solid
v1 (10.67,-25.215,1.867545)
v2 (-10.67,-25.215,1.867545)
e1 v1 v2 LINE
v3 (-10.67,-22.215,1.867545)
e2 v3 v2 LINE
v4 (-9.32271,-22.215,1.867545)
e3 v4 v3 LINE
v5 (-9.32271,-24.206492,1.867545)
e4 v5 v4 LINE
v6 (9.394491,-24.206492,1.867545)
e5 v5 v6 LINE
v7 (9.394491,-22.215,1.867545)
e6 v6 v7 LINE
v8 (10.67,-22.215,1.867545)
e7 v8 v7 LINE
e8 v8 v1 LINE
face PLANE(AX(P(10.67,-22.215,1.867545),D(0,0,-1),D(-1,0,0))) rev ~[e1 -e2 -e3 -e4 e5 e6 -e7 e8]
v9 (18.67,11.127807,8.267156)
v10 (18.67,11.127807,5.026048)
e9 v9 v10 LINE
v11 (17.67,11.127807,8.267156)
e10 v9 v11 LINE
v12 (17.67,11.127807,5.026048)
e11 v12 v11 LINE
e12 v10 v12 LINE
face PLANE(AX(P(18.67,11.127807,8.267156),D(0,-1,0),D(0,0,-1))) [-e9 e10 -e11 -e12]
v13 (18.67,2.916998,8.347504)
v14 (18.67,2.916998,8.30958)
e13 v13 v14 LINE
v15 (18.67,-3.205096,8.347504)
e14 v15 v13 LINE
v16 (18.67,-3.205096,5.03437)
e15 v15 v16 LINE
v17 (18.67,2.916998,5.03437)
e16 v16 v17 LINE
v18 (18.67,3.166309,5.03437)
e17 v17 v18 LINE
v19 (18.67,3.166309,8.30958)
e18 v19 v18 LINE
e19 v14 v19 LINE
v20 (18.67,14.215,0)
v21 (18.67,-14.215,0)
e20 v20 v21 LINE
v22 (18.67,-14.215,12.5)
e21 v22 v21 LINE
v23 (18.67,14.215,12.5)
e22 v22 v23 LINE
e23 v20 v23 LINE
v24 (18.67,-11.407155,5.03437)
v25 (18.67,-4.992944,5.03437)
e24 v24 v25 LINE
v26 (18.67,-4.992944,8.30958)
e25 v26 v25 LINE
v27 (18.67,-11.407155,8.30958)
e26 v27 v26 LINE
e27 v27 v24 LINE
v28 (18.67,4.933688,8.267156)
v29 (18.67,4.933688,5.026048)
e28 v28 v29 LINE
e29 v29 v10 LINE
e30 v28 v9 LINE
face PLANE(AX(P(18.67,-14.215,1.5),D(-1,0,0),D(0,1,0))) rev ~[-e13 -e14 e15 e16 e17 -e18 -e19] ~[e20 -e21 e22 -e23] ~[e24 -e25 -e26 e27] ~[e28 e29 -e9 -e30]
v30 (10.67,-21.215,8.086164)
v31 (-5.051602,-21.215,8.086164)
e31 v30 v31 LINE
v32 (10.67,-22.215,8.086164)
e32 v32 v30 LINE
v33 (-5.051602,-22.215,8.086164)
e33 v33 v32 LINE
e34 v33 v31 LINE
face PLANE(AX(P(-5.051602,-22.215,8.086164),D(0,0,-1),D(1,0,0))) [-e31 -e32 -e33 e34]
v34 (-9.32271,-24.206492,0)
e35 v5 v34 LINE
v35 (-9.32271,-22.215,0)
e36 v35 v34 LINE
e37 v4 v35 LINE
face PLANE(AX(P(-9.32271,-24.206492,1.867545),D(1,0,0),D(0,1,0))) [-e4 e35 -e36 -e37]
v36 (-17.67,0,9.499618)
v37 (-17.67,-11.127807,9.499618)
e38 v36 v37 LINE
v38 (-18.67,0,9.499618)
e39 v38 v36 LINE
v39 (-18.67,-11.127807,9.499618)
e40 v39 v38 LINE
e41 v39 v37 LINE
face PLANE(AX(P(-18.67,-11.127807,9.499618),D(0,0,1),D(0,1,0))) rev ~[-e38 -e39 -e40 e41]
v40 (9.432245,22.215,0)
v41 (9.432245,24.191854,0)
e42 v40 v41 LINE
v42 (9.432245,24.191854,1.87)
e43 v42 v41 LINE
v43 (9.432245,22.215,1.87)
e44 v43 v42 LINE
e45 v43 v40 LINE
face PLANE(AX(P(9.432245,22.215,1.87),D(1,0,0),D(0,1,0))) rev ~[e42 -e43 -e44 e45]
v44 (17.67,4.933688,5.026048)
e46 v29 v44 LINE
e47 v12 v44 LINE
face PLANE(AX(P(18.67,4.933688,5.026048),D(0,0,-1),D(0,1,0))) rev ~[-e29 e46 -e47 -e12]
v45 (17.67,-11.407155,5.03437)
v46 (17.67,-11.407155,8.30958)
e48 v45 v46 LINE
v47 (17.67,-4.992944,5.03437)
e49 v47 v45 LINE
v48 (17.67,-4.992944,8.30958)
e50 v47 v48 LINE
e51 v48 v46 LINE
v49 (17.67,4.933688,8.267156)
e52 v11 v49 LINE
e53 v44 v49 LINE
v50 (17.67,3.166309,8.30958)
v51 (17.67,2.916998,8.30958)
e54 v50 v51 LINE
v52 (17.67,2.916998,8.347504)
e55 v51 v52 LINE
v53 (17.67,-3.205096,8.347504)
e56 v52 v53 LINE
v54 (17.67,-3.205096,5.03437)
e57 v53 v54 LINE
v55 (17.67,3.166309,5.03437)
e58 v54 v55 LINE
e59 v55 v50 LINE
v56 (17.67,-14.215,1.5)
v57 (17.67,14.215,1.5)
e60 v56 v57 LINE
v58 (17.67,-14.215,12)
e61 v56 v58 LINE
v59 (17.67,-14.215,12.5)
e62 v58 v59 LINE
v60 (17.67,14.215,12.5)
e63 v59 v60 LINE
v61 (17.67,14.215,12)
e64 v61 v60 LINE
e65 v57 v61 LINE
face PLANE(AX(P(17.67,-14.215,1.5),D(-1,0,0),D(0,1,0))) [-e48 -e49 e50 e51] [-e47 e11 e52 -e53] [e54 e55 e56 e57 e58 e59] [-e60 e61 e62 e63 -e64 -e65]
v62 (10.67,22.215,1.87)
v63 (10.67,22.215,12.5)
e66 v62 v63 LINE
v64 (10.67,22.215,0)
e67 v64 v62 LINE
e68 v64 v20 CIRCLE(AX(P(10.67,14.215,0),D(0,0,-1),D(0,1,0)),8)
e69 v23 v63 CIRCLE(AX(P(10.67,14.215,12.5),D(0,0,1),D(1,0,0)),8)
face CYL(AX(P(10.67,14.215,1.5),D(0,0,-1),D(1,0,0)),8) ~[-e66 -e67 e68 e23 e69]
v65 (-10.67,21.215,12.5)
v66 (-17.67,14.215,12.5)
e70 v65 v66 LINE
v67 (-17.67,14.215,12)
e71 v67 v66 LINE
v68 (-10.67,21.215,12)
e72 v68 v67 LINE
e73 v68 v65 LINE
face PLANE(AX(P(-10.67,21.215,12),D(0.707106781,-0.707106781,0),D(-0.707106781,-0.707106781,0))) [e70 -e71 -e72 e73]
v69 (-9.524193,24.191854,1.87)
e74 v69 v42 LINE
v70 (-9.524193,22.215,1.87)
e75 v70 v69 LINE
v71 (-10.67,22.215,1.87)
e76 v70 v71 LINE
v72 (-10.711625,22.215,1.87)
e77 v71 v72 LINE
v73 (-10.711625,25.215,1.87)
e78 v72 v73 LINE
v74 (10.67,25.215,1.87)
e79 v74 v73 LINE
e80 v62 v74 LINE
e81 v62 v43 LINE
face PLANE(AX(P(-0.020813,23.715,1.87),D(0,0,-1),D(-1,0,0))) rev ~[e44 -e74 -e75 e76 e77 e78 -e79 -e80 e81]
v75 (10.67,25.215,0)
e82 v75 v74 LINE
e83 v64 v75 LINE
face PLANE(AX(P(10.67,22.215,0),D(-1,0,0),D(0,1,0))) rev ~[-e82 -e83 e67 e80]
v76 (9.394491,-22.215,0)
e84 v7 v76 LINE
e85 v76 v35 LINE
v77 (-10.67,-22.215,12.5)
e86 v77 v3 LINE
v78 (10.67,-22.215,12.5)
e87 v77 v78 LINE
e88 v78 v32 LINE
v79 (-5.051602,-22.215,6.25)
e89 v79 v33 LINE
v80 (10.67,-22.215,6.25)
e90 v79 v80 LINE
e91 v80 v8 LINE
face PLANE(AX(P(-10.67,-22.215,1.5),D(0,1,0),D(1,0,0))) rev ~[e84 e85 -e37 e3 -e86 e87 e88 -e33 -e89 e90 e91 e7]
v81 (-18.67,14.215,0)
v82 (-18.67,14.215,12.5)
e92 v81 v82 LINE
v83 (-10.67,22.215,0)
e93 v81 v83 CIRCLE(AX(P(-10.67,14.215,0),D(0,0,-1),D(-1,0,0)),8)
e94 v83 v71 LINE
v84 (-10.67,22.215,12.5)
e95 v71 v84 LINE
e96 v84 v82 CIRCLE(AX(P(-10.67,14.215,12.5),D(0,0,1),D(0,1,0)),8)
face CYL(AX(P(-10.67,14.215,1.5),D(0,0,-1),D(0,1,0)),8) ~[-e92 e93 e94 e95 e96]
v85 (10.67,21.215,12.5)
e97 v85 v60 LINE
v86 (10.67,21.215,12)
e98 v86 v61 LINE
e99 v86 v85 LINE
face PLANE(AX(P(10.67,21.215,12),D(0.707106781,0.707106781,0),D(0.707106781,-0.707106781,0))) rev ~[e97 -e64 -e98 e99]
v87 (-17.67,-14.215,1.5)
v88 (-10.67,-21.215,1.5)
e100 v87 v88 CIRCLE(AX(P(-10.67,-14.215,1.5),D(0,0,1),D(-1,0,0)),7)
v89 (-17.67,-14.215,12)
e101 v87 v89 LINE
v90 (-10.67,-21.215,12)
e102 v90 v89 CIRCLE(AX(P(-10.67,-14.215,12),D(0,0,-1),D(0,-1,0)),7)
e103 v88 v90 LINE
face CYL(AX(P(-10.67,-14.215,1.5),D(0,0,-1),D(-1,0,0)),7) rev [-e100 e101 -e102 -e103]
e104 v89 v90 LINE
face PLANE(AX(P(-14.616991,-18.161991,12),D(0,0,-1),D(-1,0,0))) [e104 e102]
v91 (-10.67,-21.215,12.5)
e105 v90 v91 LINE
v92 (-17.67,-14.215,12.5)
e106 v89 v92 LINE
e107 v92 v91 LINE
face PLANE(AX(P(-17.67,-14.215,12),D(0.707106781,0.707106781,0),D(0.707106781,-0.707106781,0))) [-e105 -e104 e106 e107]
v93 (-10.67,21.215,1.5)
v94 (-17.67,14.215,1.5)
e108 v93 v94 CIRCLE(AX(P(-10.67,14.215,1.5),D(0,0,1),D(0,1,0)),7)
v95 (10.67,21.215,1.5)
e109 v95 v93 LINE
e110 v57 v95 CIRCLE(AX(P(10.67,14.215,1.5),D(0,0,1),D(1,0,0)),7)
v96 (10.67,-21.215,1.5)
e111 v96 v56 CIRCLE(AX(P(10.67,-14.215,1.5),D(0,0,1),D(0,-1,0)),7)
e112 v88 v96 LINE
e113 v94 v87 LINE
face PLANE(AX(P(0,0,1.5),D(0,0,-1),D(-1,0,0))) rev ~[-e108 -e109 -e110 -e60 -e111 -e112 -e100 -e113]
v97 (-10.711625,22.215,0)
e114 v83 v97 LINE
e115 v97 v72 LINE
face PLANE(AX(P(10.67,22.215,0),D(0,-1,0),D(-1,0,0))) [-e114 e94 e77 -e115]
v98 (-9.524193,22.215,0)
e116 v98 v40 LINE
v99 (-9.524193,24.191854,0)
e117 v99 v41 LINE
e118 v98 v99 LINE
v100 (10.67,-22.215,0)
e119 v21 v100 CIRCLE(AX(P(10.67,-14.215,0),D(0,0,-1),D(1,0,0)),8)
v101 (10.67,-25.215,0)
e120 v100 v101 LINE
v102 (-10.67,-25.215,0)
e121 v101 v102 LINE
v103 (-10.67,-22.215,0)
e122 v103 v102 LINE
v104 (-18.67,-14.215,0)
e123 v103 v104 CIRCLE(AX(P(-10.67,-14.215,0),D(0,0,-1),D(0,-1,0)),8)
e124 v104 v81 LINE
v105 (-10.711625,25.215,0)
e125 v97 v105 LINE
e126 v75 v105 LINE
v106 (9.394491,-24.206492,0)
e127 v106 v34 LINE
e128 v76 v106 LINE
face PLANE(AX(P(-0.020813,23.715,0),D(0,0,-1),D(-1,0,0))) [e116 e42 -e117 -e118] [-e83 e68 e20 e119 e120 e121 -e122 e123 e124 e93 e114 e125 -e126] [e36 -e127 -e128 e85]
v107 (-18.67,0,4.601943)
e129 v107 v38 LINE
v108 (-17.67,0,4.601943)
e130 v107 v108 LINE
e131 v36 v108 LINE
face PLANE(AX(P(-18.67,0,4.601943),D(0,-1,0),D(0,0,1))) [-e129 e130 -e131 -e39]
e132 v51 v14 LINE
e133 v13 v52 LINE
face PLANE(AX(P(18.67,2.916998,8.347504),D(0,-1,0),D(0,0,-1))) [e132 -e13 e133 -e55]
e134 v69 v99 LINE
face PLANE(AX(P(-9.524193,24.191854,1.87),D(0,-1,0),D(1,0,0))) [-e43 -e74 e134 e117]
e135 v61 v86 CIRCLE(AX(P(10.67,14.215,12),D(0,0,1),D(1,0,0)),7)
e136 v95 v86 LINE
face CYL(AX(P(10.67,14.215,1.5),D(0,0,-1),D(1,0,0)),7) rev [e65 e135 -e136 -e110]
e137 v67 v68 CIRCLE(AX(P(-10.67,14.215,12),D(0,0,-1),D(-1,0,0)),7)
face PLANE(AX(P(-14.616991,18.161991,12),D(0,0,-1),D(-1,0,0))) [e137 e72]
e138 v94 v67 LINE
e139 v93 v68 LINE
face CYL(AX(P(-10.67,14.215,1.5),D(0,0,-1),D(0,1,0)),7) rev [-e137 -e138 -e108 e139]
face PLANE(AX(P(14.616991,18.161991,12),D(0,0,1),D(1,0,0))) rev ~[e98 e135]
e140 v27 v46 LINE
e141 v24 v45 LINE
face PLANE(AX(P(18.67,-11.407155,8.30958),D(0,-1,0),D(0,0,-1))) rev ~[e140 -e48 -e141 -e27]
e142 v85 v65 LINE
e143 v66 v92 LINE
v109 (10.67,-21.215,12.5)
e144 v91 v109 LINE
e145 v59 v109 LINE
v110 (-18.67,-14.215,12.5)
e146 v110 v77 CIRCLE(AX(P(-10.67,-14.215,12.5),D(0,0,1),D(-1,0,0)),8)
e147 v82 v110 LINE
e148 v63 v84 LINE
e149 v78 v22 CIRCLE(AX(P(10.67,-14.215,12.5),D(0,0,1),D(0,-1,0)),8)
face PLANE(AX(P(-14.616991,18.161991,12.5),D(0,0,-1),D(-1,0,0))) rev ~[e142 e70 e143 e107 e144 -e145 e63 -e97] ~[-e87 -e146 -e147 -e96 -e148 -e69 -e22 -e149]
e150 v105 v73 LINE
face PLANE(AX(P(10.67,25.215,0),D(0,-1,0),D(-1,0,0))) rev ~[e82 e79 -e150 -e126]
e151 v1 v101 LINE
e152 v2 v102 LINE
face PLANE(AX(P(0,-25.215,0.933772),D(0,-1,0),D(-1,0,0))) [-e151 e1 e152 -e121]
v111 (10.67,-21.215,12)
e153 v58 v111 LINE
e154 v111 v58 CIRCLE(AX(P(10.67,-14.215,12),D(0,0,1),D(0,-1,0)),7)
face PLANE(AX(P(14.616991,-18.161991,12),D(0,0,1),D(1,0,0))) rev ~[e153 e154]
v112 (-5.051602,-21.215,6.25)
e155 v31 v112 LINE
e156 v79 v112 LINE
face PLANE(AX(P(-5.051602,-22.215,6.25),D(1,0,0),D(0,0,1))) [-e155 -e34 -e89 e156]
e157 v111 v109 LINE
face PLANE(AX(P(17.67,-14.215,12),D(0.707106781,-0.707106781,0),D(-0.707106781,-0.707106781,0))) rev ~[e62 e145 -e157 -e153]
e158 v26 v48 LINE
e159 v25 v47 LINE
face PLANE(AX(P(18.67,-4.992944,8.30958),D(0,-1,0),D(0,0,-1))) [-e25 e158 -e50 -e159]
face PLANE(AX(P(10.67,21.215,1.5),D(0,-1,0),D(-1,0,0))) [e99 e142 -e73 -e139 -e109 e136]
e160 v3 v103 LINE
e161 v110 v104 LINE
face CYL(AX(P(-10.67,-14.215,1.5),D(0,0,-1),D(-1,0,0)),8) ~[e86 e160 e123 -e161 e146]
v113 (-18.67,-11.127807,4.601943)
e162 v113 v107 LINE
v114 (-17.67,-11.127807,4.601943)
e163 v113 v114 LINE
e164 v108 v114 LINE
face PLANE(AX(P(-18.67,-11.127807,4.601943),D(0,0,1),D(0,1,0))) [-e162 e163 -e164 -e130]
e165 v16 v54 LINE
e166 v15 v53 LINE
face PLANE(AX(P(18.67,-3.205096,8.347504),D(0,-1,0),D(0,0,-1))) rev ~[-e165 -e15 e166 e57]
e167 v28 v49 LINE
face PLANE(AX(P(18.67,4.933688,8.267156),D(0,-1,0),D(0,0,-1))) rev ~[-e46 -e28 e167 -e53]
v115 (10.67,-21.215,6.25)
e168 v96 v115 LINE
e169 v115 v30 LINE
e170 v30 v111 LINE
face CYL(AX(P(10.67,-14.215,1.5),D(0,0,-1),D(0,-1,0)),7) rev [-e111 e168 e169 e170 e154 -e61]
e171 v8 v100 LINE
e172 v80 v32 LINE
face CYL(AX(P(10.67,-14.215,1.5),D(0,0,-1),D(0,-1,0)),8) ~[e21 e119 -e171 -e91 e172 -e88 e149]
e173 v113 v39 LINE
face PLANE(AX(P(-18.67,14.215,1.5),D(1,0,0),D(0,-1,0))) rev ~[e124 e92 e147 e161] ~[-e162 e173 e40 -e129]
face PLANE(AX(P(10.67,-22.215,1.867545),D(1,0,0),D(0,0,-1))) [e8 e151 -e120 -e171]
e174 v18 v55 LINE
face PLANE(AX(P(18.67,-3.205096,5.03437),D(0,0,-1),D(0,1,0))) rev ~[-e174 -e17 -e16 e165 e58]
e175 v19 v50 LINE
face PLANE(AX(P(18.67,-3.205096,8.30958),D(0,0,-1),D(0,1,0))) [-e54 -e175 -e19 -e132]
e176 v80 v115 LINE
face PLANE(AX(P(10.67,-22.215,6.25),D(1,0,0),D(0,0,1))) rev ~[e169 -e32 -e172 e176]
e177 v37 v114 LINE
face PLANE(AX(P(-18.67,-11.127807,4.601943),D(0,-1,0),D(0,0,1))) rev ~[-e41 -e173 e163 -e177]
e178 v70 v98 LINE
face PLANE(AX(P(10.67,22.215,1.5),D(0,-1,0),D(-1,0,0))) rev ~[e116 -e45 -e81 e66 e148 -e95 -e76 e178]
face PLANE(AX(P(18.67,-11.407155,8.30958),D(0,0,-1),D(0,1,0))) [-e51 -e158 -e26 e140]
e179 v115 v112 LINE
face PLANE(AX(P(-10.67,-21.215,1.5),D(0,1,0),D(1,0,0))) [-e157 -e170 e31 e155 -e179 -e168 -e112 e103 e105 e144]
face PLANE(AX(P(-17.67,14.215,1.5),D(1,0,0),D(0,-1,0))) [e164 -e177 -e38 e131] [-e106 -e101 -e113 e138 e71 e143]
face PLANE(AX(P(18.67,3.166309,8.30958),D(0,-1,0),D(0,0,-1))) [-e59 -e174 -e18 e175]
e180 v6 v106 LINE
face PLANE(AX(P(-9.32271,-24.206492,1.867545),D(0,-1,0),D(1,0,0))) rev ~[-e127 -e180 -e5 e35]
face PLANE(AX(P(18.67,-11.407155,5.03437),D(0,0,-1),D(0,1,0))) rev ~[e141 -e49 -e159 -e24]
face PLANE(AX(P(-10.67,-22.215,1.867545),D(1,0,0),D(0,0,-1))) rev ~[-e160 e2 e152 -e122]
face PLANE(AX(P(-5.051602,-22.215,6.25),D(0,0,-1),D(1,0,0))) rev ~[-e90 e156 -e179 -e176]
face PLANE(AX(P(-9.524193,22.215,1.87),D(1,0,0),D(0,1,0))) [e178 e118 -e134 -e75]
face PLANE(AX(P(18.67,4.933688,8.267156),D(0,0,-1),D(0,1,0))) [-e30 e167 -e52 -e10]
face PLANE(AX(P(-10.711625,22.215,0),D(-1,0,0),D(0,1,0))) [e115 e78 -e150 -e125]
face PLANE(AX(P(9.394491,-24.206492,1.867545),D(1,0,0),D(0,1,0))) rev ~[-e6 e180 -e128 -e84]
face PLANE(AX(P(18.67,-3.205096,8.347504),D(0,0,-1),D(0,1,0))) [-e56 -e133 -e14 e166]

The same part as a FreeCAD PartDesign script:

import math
import FreeCAD as App
import Part
import Sketcher

V = App.Vector
Q = App.Units.Quantity

doc = App.newDocument("Part")
body = doc.addObject("PartDesign::Body", "Body")

# Sketch on XY plane
sketch1 = body.newObject("Sketcher::SketchObject", "Sketch")
sketch1.AttachmentSupport = (doc.getObject("XY_Plane"), [""])
sketch1.MapMode = "FlatFace"
sketch1.addGeometry(Part.LineSegment(V(10.67, 22.215, 0), V(-10.67, 22.215, 0)), False)
sketch1.addGeometry(Part.ArcOfCircle(Part.Circle(V(-10.67, 14.215, 0), V(0, 0, 1), 8), math.radians(90), math.radians(180)), False)
sketch1.addGeometry(Part.LineSegment(V(-18.67, 14.215, 0), V(-18.67, -14.215, 0)), False)
sketch1.addGeometry(Part.ArcOfCircle(Part.Circle(V(-10.67, -14.215, 0), V(0, 0, 1), 8), math.radians(-180), math.radians(-90)), False)
sketch1.addGeometry(Part.LineSegment(V(-10.67, -22.215, 0), V(10.67, -22.215, 0)), False)
sketch1.addGeometry(Part.ArcOfCircle(Part.Circle(V(10.67, -14.215, 0), V(0, 0, 1), 8), math.radians(-90), math.radians(0)), False)
sketch1.addGeometry(Part.LineSegment(V(18.67, -14.215, 0), V(18.67, 14.215, 0)), False)
sketch1.addGeometry(Part.ArcOfCircle(Part.Circle(V(10.67, 14.215, 0), V(0, 0, 1), 8), math.radians(0), math.radians(90)), False)
sketch1.addConstraint(Sketcher.Constraint("Tangent", 0, 2, 1, 1))
sketch1.addConstraint(Sketcher.Constraint("Tangent", 1, 2, 2, 1))
sketch1.addConstraint(Sketcher.Constraint("Tangent", 2, 2, 3, 1))
sketch1.addConstraint(Sketcher.Constraint("Tangent", 3, 2, 4, 1))
sketch1.addConstraint(Sketcher.Constraint("Tangent", 4, 2, 5, 1))
sketch1.addConstraint(Sketcher.Constraint("Tangent", 5, 2, 6, 1))
sketch1.addConstraint(Sketcher.Constraint("Tangent", 6, 2, 7, 1))
sketch1.addConstraint(Sketcher.Constraint("Tangent", 7, 2, 0, 1))
sketch1.addConstraint(Sketcher.Constraint("Horizontal", 0))
sketch1.addConstraint(Sketcher.Constraint("Vertical", 2))
sketch1.addConstraint(Sketcher.Constraint("Horizontal", 4))
sketch1.addConstraint(Sketcher.Constraint("Vertical", 6))
sketch1.addConstraint(Sketcher.Constraint("Equal", 1, 3))
sketch1.addConstraint(Sketcher.Constraint("Equal", 3, 5))
sketch1.addConstraint(Sketcher.Constraint("Equal", 5, 7))
sketch1.addConstraint(Sketcher.Constraint("Symmetric", 1, 3, 5, 3, -1, 1))
sketch1.addConstraint(Sketcher.Constraint("Radius", 1, 8.0))
sketch1.addConstraint(Sketcher.Constraint("DistanceX", 0, 2, 0, 1, 21.34))
sketch1.addConstraint(Sketcher.Constraint("DistanceY", 2, 2, 2, 1, 28.43))
pad1 = body.newObject("PartDesign::Pad", "Pad")
pad1.Profile = sketch1
pad1.Length = 1.5

# Sketch on XY plane
sketch2 = body.newObject("Sketcher::SketchObject", "Sketch001")
sketch2.AttachmentSupport = (doc.getObject("XY_Plane"), [""])
sketch2.MapMode = "FlatFace"
sketch2.AttachmentOffset = App.Placement(V(0, 0, 1.5), App.Rotation())
sketch2.addGeometry(Part.LineSegment(V(18.67, -14.215, 0), V(18.67, 14.215, 0)), False)
sketch2.addGeometry(Part.ArcOfCircle(Part.Circle(V(10.67, 14.215, 0), V(0, 0, 1), 8), math.radians(0), math.radians(90)), False)
sketch2.addGeometry(Part.LineSegment(V(10.67, 22.215, 0), V(-10.67, 22.215, 0)), False)
sketch2.addGeometry(Part.ArcOfCircle(Part.Circle(V(-10.67, 14.215, 0), V(0, 0, 1), 8), math.radians(90), math.radians(180)), False)
sketch2.addGeometry(Part.LineSegment(V(-18.67, 14.215, 0), V(-18.67, -14.215, 0)), False)
sketch2.addGeometry(Part.ArcOfCircle(Part.Circle(V(-10.67, -14.215, 0), V(0, 0, 1), 8), math.radians(-180), math.radians(-90)), False)
sketch2.addGeometry(Part.LineSegment(V(-10.67, -22.215, 0), V(10.67, -22.215, 0)), False)
sketch2.addGeometry(Part.ArcOfCircle(Part.Circle(V(10.67, -14.215, 0), V(0, 0, 1), 8), math.radians(-90), math.radians(0)), False)
sketch2.addGeometry(Part.LineSegment(V(17.67, 14.215, 0), V(17.67, -14.215, 0)), False)
sketch2.addGeometry(Part.ArcOfCircle(Part.Circle(V(10.67, -14.215, 0), V(0, 0, 1), 7), math.radians(-90), math.radians(0)), False)
sketch2.addGeometry(Part.LineSegment(V(10.67, -21.215, 0), V(-10.67, -21.215, 0)), False)
sketch2.addGeometry(Part.ArcOfCircle(Part.Circle(V(-10.67, -14.215, 0), V(0, 0, 1), 7), math.radians(-180), math.radians(-90)), False)
sketch2.addGeometry(Part.LineSegment(V(-17.67, -14.215, 0), V(-17.67, 14.215, 0)), False)
sketch2.addGeometry(Part.ArcOfCircle(Part.Circle(V(-10.67, 14.215, 0), V(0, 0, 1), 7), math.radians(90), math.radians(180)), False)
sketch2.addGeometry(Part.LineSegment(V(-10.67, 21.215, 0), V(10.67, 21.215, 0)), False)
sketch2.addGeometry(Part.ArcOfCircle(Part.Circle(V(10.67, 14.215, 0), V(0, 0, 1), 7), math.radians(0), math.radians(90)), False)
sketch2.addConstraint(Sketcher.Constraint("Tangent", 0, 2, 1, 1))
sketch2.addConstraint(Sketcher.Constraint("Tangent", 1, 2, 2, 1))
sketch2.addConstraint(Sketcher.Constraint("Tangent", 2, 2, 3, 1))
sketch2.addConstraint(Sketcher.Constraint("Tangent", 3, 2, 4, 1))
sketch2.addConstraint(Sketcher.Constraint("Tangent", 4, 2, 5, 1))
sketch2.addConstraint(Sketcher.Constraint("Tangent", 5, 2, 6, 1))
sketch2.addConstraint(Sketcher.Constraint("Tangent", 6, 2, 7, 1))
sketch2.addConstraint(Sketcher.Constraint("Tangent", 7, 2, 0, 1))
sketch2.addConstraint(Sketcher.Constraint("Tangent", 8, 2, 9, 2))
sketch2.addConstraint(Sketcher.Constraint("Tangent", 9, 1, 10, 1))
sketch2.addConstraint(Sketcher.Constraint("Tangent", 10, 2, 11, 2))
sketch2.addConstraint(Sketcher.Constraint("Tangent", 11, 1, 12, 1))
sketch2.addConstraint(Sketcher.Constraint("Tangent", 12, 2, 13, 2))
sketch2.addConstraint(Sketcher.Constraint("Tangent", 13, 1, 14, 1))
sketch2.addConstraint(Sketcher.Constraint("Tangent", 14, 2, 15, 2))
sketch2.addConstraint(Sketcher.Constraint("Tangent", 15, 1, 8, 1))
sketch2.addConstraint(Sketcher.Constraint("Vertical", 0))
sketch2.addConstraint(Sketcher.Constraint("Horizontal", 2))
sketch2.addConstraint(Sketcher.Constraint("Vertical", 4))
sketch2.addConstraint(Sketcher.Constraint("Horizontal", 6))
sketch2.addConstraint(Sketcher.Constraint("Vertical", 8))
sketch2.addConstraint(Sketcher.Constraint("Horizontal", 10))
sketch2.addConstraint(Sketcher.Constraint("Vertical", 12))
sketch2.addConstraint(Sketcher.Constraint("Horizontal", 14))
sketch2.addConstraint(Sketcher.Constraint("Coincident", 9, 3, 7, 3))
sketch2.addConstraint(Sketcher.Constraint("Coincident", 11, 3, 5, 3))
sketch2.addConstraint(Sketcher.Constraint("Coincident", 13, 3, 3, 3))
sketch2.addConstraint(Sketcher.Constraint("Equal", 1, 3))
sketch2.addConstraint(Sketcher.Constraint("Equal", 3, 5))
sketch2.addConstraint(Sketcher.Constraint("Equal", 5, 7))
sketch2.addConstraint(Sketcher.Constraint("Equal", 13, 15))
sketch2.addConstraint(Sketcher.Constraint("Symmetric", 1, 3, 5, 3, -1, 1))
sketch2.addConstraint(Sketcher.Constraint("Radius", 1, 8.0))
sketch2.addConstraint(Sketcher.Constraint("Radius", 9, 7.0))
sketch2.addConstraint(Sketcher.Constraint("DistanceX", 2, 2, 2, 1, 21.34))
sketch2.addConstraint(Sketcher.Constraint("DistanceY", 0, 1, 0, 2, 28.43))
pad2 = body.newObject("PartDesign::Pad", "Pad001")
pad2.Profile = sketch2
pad2.Length = 11

# Sketch on XY plane
sketch3 = body.newObject("Sketcher::SketchObject", "Sketch002")
sketch3.AttachmentSupport = (doc.getObject("XY_Plane"), [""])
sketch3.MapMode = "FlatFace"
sketch3.AttachmentOffset = App.Placement(V(0, 0, 12), App.Rotation())
sketch3.addGeometry(Part.LineSegment(V(-10.67, -21.215, 0), V(-17.67, -14.215, 0)), False)
sketch3.addGeometry(Part.ArcOfCircle(Part.Circle(V(-10.67, -14.215, 0), V(0, 0, 1), 7), math.radians(-180), math.radians(-90)), False)
sketch3.addConstraint(Sketcher.Constraint("Coincident", 0, 1, 1, 2))
sketch3.addConstraint(Sketcher.Constraint("Coincident", 1, 1, 0, 2))
sketch3.addConstraint(Sketcher.Constraint("Vertical", 1, 3, 0, 1))
sketch3.addConstraint(Sketcher.Constraint("Radius", 1, 7.0))
sketch3.addConstraint(Sketcher.Constraint("Angle", 0, Q("135 deg")))
sketch3.addConstraint(Sketcher.Constraint("DistanceX", 1, 3, -1, 1, 10.67))
sketch3.addConstraint(Sketcher.Constraint("DistanceY", 1, 3, -1, 1, 14.215))
pad3 = body.newObject("PartDesign::Pad", "Pad002")
pad3.Profile = sketch3
pad3.Length = 0.5

# Sketch on XY plane
sketch4 = body.newObject("Sketcher::SketchObject", "Sketch003")
sketch4.AttachmentSupport = (doc.getObject("XY_Plane"), [""])
sketch4.MapMode = "FlatFace"
sketch4.AttachmentOffset = App.Placement(V(0, 0, 12), App.Rotation())
sketch4.addGeometry(Part.LineSegment(V(10.67, 21.215, 0), V(17.67, 14.215, 0)), False)
sketch4.addGeometry(Part.ArcOfCircle(Part.Circle(V(10.67, 14.215, 0), V(0, 0, 1), 7), math.radians(0), math.radians(90)), False)
sketch4.addConstraint(Sketcher.Constraint("Coincident", 0, 1, 1, 2))
sketch4.addConstraint(Sketcher.Constraint("Coincident", 1, 1, 0, 2))
sketch4.addConstraint(Sketcher.Constraint("Vertical", 1, 3, 0, 1))
sketch4.addConstraint(Sketcher.Constraint("Radius", 1, 7.0))
sketch4.addConstraint(Sketcher.Constraint("Angle", 0, Q("-45 deg")))
sketch4.addConstraint(Sketcher.Constraint("DistanceX", -1, 1, 1, 3, 10.67))
sketch4.addConstraint(Sketcher.Constraint("DistanceY", -1, 1, 1, 3, 14.215))
pad4 = body.newObject("PartDesign::Pad", "Pad003")
pad4.Profile = sketch4
pad4.Length = 0.5

# Sketch on XY plane
sketch5 = body.newObject("Sketcher::SketchObject", "Sketch004")
sketch5.AttachmentSupport = (doc.getObject("XY_Plane"), [""])
sketch5.MapMode = "FlatFace"
sketch5.AttachmentOffset = App.Placement(V(0, 0, 12), App.Rotation())
sketch5.addGeometry(Part.LineSegment(V(17.67, -14.215, 0), V(10.67, -21.215, 0)), False)
sketch5.addGeometry(Part.ArcOfCircle(Part.Circle(V(10.67, -14.215, 0), V(0, 0, 1), 7), math.radians(-90), math.radians(0)), False)
sketch5.addConstraint(Sketcher.Constraint("Coincident", 0, 1, 1, 2))
sketch5.addConstraint(Sketcher.Constraint("Coincident", 1, 1, 0, 2))
sketch5.addConstraint(Sketcher.Constraint("Horizontal", 1, 3, 0, 1))
sketch5.addConstraint(Sketcher.Constraint("Radius", 1, 7.0))
sketch5.addConstraint(Sketcher.Constraint("Angle", 0, Q("-135 deg")))
sketch5.addConstraint(Sketcher.Constraint("DistanceX", -1, 1, 1, 3, 10.67))
sketch5.addConstraint(Sketcher.Constraint("DistanceY", 1, 3, -1, 1, 14.215))
pad5 = body.newObject("PartDesign::Pad", "Pad004")
pad5.Profile = sketch5
pad5.Length = 0.5

# Sketch on YZ plane
sketch6 = body.newObject("Sketcher::SketchObject", "Sketch005")
sketch6.AttachmentSupport = (doc.getObject("YZ_Plane"), [""])
sketch6.MapMode = "FlatFace"
sketch6.AttachmentOffset = App.Placement(V(0, 0, -18.67), App.Rotation())
sketch6.addGeometry(Part.LineSegment(V(0, 4.601943, 0), V(-11.127807, 4.601943, 0)), False)
sketch6.addGeometry(Part.LineSegment(V(-11.127807, 4.601943, 0), V(-11.127807, 9.499618, 0)), False)
sketch6.addGeometry(Part.LineSegment(V(-11.127807, 9.499618, 0), V(0, 9.499618, 0)), False)
sketch6.addGeometry(Part.LineSegment(V(0, 9.499618, 0), V(0, 4.601943, 0)), False)
sketch6.addConstraint(Sketcher.Constraint("Coincident", 0, 2, 1, 1))
sketch6.addConstraint(Sketcher.Constraint("Coincident", 1, 2, 2, 1))
sketch6.addConstraint(Sketcher.Constraint("Coincident", 2, 2, 3, 1))
sketch6.addConstraint(Sketcher.Constraint("Coincident", 3, 2, 0, 1))
sketch6.addConstraint(Sketcher.Constraint("Horizontal", 0))
sketch6.addConstraint(Sketcher.Constraint("Vertical", 1))
sketch6.addConstraint(Sketcher.Constraint("Horizontal", 2))
sketch6.addConstraint(Sketcher.Constraint("Vertical", 3))
sketch6.addConstraint(Sketcher.Constraint("PointOnObject", 2, 2, -2))
sketch6.addConstraint(Sketcher.Constraint("DistanceX", 0, 2, 0, 1, 11.127807))
sketch6.addConstraint(Sketcher.Constraint("DistanceY", 1, 1, 1, 2, 4.897675))
sketch6.addConstraint(Sketcher.Constraint("DistanceY", -1, 1, 1, 2, 9.499618))
pocket1 = body.newObject("PartDesign::Pocket", "Pocket")
pocket1.Profile = sketch6
pocket1.Length = 3
pocket1.Reversed = True

# Sketch on YZ plane
sketch7 = body.newObject("Sketcher::SketchObject", "Sketch006")
sketch7.AttachmentSupport = (doc.getObject("YZ_Plane"), [""])
sketch7.MapMode = "FlatFace"
sketch7.AttachmentOffset = App.Placement(V(0, 0, 18.67), App.Rotation())
sketch7.addGeometry(Part.LineSegment(V(11.127807, 8.267156, 0), V(4.933688, 8.267156, 0)), False)
sketch7.addGeometry(Part.LineSegment(V(4.933688, 8.267156, 0), V(4.933688, 5.026048, 0)), False)
sketch7.addGeometry(Part.LineSegment(V(4.933688, 5.026048, 0), V(11.127807, 5.026048, 0)), False)
sketch7.addGeometry(Part.LineSegment(V(11.127807, 5.026048, 0), V(11.127807, 8.267156, 0)), False)
sketch7.addConstraint(Sketcher.Constraint("Coincident", 0, 2, 1, 1))
sketch7.addConstraint(Sketcher.Constraint("Coincident", 1, 2, 2, 1))
sketch7.addConstraint(Sketcher.Constraint("Coincident", 2, 2, 3, 1))
sketch7.addConstraint(Sketcher.Constraint("Coincident", 3, 2, 0, 1))
sketch7.addConstraint(Sketcher.Constraint("Horizontal", 0))
sketch7.addConstraint(Sketcher.Constraint("Vertical", 1))
sketch7.addConstraint(Sketcher.Constraint("Horizontal", 2))
sketch7.addConstraint(Sketcher.Constraint("Vertical", 3))
sketch7.addConstraint(Sketcher.Constraint("DistanceX", 0, 2, 0, 1, 6.194119))
sketch7.addConstraint(Sketcher.Constraint("DistanceY", 1, 2, 1, 1, 3.241109))
sketch7.addConstraint(Sketcher.Constraint("DistanceX", -1, 1, 0, 2, 4.933688))
sketch7.addConstraint(Sketcher.Constraint("DistanceY", -1, 1, 0, 2, 8.267156))
pocket2 = body.newObject("PartDesign::Pocket", "Pocket001")
pocket2.Profile = sketch7
pocket2.Length = 3

# Sketch on YZ plane
sketch8 = body.newObject("Sketcher::SketchObject", "Sketch007")
sketch8.AttachmentSupport = (doc.getObject("YZ_Plane"), [""])
sketch8.MapMode = "FlatFace"
sketch8.AttachmentOffset = App.Placement(V(0, 0, 18.67), App.Rotation())
sketch8.addGeometry(Part.LineSegment(V(2.916998, 8.347504, 0), V(-3.205096, 8.347504, 0)), False)
sketch8.addGeometry(Part.LineSegment(V(-3.205096, 8.347504, 0), V(-3.205096, 5.03437, 0)), False)
sketch8.addGeometry(Part.LineSegment(V(-3.205096, 5.03437, 0), V(2.916998, 5.03437, 0)), False)
sketch8.addGeometry(Part.LineSegment(V(2.916998, 5.03437, 0), V(2.916998, 8.347504, 0)), False)
sketch8.addConstraint(Sketcher.Constraint("Coincident", 0, 2, 1, 1))
sketch8.addConstraint(Sketcher.Constraint("Coincident", 1, 2, 2, 1))
sketch8.addConstraint(Sketcher.Constraint("Coincident", 2, 2, 3, 1))
sketch8.addConstraint(Sketcher.Constraint("Coincident", 3, 2, 0, 1))
sketch8.addConstraint(Sketcher.Constraint("Horizontal", 0))
sketch8.addConstraint(Sketcher.Constraint("Vertical", 1))
sketch8.addConstraint(Sketcher.Constraint("Horizontal", 2))
sketch8.addConstraint(Sketcher.Constraint("Vertical", 3))
sketch8.addConstraint(Sketcher.Constraint("DistanceX", 0, 2, 0, 1, 6.122094))
sketch8.addConstraint(Sketcher.Constraint("DistanceY", 1, 2, 1, 1, 3.313133))
sketch8.addConstraint(Sketcher.Constraint("DistanceY", -1, 1, 1, 2, 5.03437))
sketch8.addConstraint(Sketcher.Constraint("DistanceX", 0, 2, -1, 1, 3.205096))
pocket3 = body.newObject("PartDesign::Pocket", "Pocket002")
pocket3.Profile = sketch8
pocket3.Length = 3

# Sketch on YZ plane
sketch9 = body.newObject("Sketcher::SketchObject", "Sketch008")
sketch9.AttachmentSupport = (doc.getObject("YZ_Plane"), [""])
sketch9.MapMode = "FlatFace"
sketch9.AttachmentOffset = App.Placement(V(0, 0, 18.67), App.Rotation())
sketch9.addGeometry(Part.LineSegment(V(-5.077737, 8.105355, 0), V(-11.343881, 8.105355, 0)), False)
sketch9.addGeometry(Part.LineSegment(V(-11.343881, 8.105355, 0), V(-11.343881, 5.224369, 0)), False)
sketch9.addGeometry(Part.LineSegment(V(-11.343881, 5.224369, 0), V(-5.077737, 5.224369, 0)), False)
sketch9.addGeometry(Part.LineSegment(V(-5.077737, 5.224369, 0), V(-5.077737, 8.105355, 0)), False)
sketch9.addConstraint(Sketcher.Constraint("Coincident", 0, 2, 1, 1))
sketch9.addConstraint(Sketcher.Constraint("Coincident", 1, 2, 2, 1))
sketch9.addConstraint(Sketcher.Constraint("Coincident", 2, 2, 3, 1))
sketch9.addConstraint(Sketcher.Constraint("Coincident", 3, 2, 0, 1))
sketch9.addConstraint(Sketcher.Constraint("Horizontal", 0))
sketch9.addConstraint(Sketcher.Constraint("Vertical", 1))
sketch9.addConstraint(Sketcher.Constraint("Horizontal", 2))
sketch9.addConstraint(Sketcher.Constraint("Vertical", 3))
sketch9.addConstraint(Sketcher.Constraint("DistanceX", 0, 2, 0, 1, 6.266144))
sketch9.addConstraint(Sketcher.Constraint("DistanceY", 1, 2, 1, 1, 2.880986))
sketch9.addConstraint(Sketcher.Constraint("DistanceX", 0, 2, -1, 1, 11.343881))
sketch9.addConstraint(Sketcher.Constraint("DistanceY", -1, 1, 1, 2, 5.224369))
pocket4 = body.newObject("PartDesign::Pocket", "Pocket003")
pocket4.Profile = sketch9
pocket4.Length = 3

# Sketch on XZ plane
sketch10 = body.newObject("Sketcher::SketchObject", "Sketch009")
sketch10.AttachmentSupport = (doc.getObject("XZ_Plane"), [""])
sketch10.MapMode = "FlatFace"
sketch10.AttachmentOffset = App.Placement(V(0, 0, 22.215), App.Rotation())
sketch10.addGeometry(Part.LineSegment(V(-5.051602, 8.086164, 0), V(-5.051602, 6.25, 0)), False)
sketch10.addGeometry(Part.LineSegment(V(-5.051602, 6.25, 0), V(10.67, 6.25, 0)), False)
sketch10.addGeometry(Part.LineSegment(V(10.67, 6.25, 0), V(10.67, 8.086164, 0)), False)
sketch10.addGeometry(Part.LineSegment(V(10.67, 8.086164, 0), V(-5.051602, 8.086164, 0)), False)
sketch10.addConstraint(Sketcher.Constraint("Coincident", 0, 2, 1, 1))
sketch10.addConstraint(Sketcher.Constraint("Coincident", 1, 2, 2, 1))
sketch10.addConstraint(Sketcher.Constraint("Coincident", 2, 2, 3, 1))
sketch10.addConstraint(Sketcher.Constraint("Coincident", 3, 2, 0, 1))
sketch10.addConstraint(Sketcher.Constraint("Vertical", 0))
sketch10.addConstraint(Sketcher.Constraint("Horizontal", 1))
sketch10.addConstraint(Sketcher.Constraint("Vertical", 2))
sketch10.addConstraint(Sketcher.Constraint("Horizontal", 3))
sketch10.addConstraint(Sketcher.Constraint("DistanceY", -1, 1, 0, 2, 6.25))
sketch10.addConstraint(Sketcher.Constraint("DistanceX", -1, 1, 1, 2, 10.67))
sketch10.addConstraint(Sketcher.Constraint("DistanceX", 1, 1, 1, 2, 15.721602))
sketch10.addConstraint(Sketcher.Constraint("DistanceY", 0, 2, 0, 1, 1.836164))
pocket5 = body.newObject("PartDesign::Pocket", "Pocket004")
pocket5.Profile = sketch10
pocket5.Length = 3

# Sketch on YZ plane
sketch11 = body.newObject("Sketcher::SketchObject", "Sketch010")
sketch11.AttachmentSupport = (doc.getObject("YZ_Plane"), [""])
sketch11.MapMode = "FlatFace"
sketch11.AttachmentOffset = App.Placement(V(0, 0, 18.67), App.Rotation())
sketch11.addGeometry(Part.LineSegment(V(3.166309, 8.30958, 0), V(-3.205096, 8.30958, 0)), False)
sketch11.addGeometry(Part.LineSegment(V(-3.205096, 8.30958, 0), V(-3.205096, 5.03437, 0)), False)
sketch11.addGeometry(Part.LineSegment(V(-3.205096, 5.03437, 0), V(3.166309, 5.03437, 0)), False)
sketch11.addGeometry(Part.LineSegment(V(3.166309, 5.03437, 0), V(3.166309, 8.30958, 0)), False)
sketch11.addGeometry(Part.LineSegment(V(-4.992944, 8.30958, 0), V(-11.407155, 8.30958, 0)), False)
sketch11.addGeometry(Part.LineSegment(V(-11.407155, 8.30958, 0), V(-11.407155, 5.03437, 0)), False)
sketch11.addGeometry(Part.LineSegment(V(-11.407155, 5.03437, 0), V(-4.992944, 5.03437, 0)), False)
sketch11.addGeometry(Part.LineSegment(V(-4.992944, 5.03437, 0), V(-4.992944, 8.30958, 0)), False)
sketch11.addConstraint(Sketcher.Constraint("Coincident", 0, 2, 1, 1))
sketch11.addConstraint(Sketcher.Constraint("Coincident", 1, 2, 2, 1))
sketch11.addConstraint(Sketcher.Constraint("Coincident", 2, 2, 3, 1))
sketch11.addConstraint(Sketcher.Constraint("Coincident", 3, 2, 0, 1))
sketch11.addConstraint(Sketcher.Constraint("Coincident", 4, 2, 5, 1))
sketch11.addConstraint(Sketcher.Constraint("Coincident", 5, 2, 6, 1))
sketch11.addConstraint(Sketcher.Constraint("Coincident", 6, 2, 7, 1))
sketch11.addConstraint(Sketcher.Constraint("Coincident", 7, 2, 4, 1))
sketch11.addConstraint(Sketcher.Constraint("Horizontal", 0))
sketch11.addConstraint(Sketcher.Constraint("Vertical", 1))
sketch11.addConstraint(Sketcher.Constraint("Horizontal", 2))
sketch11.addConstraint(Sketcher.Constraint("Vertical", 3))
sketch11.addConstraint(Sketcher.Constraint("Horizontal", 4))
sketch11.addConstraint(Sketcher.Constraint("Vertical", 5))
sketch11.addConstraint(Sketcher.Constraint("Horizontal", 6))
sketch11.addConstraint(Sketcher.Constraint("Vertical", 7))
sketch11.addConstraint(Sketcher.Constraint("Horizontal", 3, 2, 4, 2))
sketch11.addConstraint(Sketcher.Constraint("Horizontal", 2, 2, 5, 2))
sketch11.addConstraint(Sketcher.Constraint("DistanceX", 4, 2, 4, 1, 6.414211))
sketch11.addConstraint(Sketcher.Constraint("DistanceY", 1, 2, 1, 1, 3.275209))
sketch11.addConstraint(Sketcher.Constraint("DistanceX", 0, 2, 0, 1, 6.371405))
sketch11.addConstraint(Sketcher.Constraint("DistanceY", -1, 1, 0, 2, 8.30958))
sketch11.addConstraint(Sketcher.Constraint("DistanceX", -1, 1, 2, 2, 3.166309))
sketch11.addConstraint(Sketcher.Constraint("DistanceX", 4, 2, 0, 2, 8.202059))
pocket6 = body.newObject("PartDesign::Pocket", "Pocket005")
pocket6.Profile = sketch11
pocket6.Length = 3

# Sketch on XY plane
sketch12 = body.newObject("Sketcher::SketchObject", "Sketch011")
sketch12.AttachmentSupport = (doc.getObject("XY_Plane"), [""])
sketch12.MapMode = "FlatFace"
sketch12.AttachmentOffset = App.Placement(V(0, 0, 12), App.Rotation())
sketch12.addGeometry(Part.LineSegment(V(-17.67, 14.215, 0), V(-10.67, 21.215, 0)), False)
sketch12.addGeometry(Part.ArcOfCircle(Part.Circle(V(-10.67, 14.215, 0), V(0, 0, 1), 7), math.radians(90), math.radians(180)), False)
sketch12.addConstraint(Sketcher.Constraint("Coincident", 0, 1, 1, 2))
sketch12.addConstraint(Sketcher.Constraint("Coincident", 1, 1, 0, 2))
sketch12.addConstraint(Sketcher.Constraint("Horizontal", 1, 3, 0, 1))
sketch12.addConstraint(Sketcher.Constraint("Radius", 1, 7.0))
sketch12.addConstraint(Sketcher.Constraint("Angle", 0, Q("45 deg")))
sketch12.addConstraint(Sketcher.Constraint("DistanceX", 1, 3, -1, 1, 10.67))
sketch12.addConstraint(Sketcher.Constraint("DistanceY", -1, 1, 1, 3, 14.215))
pad6 = body.newObject("PartDesign::Pad", "Pad005")
pad6.Profile = sketch12
pad6.Length = 0.5

# Sketch on XZ plane
sketch13 = body.newObject("Sketcher::SketchObject", "Sketch012")
sketch13.AttachmentSupport = (doc.getObject("XZ_Plane"), [""])
sketch13.MapMode = "FlatFace"
sketch13.AttachmentOffset = App.Placement(V(0, 0, 22.215), App.Rotation())
sketch13.addGeometry(Part.LineSegment(V(10.67, 0, 0), V(10.67, 1.867545, 0)), False)
sketch13.addGeometry(Part.LineSegment(V(10.67, 1.867545, 0), V(-10.67, 1.867545, 0)), False)
sketch13.addGeometry(Part.LineSegment(V(-10.67, 1.867545, 0), V(-10.67, 0, 0)), False)
sketch13.addGeometry(Part.LineSegment(V(-10.67, 0, 0), V(10.67, 0, 0)), False)
sketch13.addConstraint(Sketcher.Constraint("Coincident", 0, 2, 1, 1))
sketch13.addConstraint(Sketcher.Constraint("Coincident", 1, 2, 2, 1))
sketch13.addConstraint(Sketcher.Constraint("Coincident", 2, 2, 3, 1))
sketch13.addConstraint(Sketcher.Constraint("Coincident", 3, 2, 0, 1))
sketch13.addConstraint(Sketcher.Constraint("Vertical", 0))
sketch13.addConstraint(Sketcher.Constraint("Horizontal", 1))
sketch13.addConstraint(Sketcher.Constraint("Vertical", 2))
sketch13.addConstraint(Sketcher.Constraint("Horizontal", 3))
sketch13.addConstraint(Sketcher.Constraint("Symmetric", 2, 2, 3, 2, -1, 1))
sketch13.addConstraint(Sketcher.Constraint("DistanceX", 1, 2, 1, 1, 21.34))
sketch13.addConstraint(Sketcher.Constraint("DistanceY", 0, 1, 0, 2, 1.867545))
pad7 = body.newObject("PartDesign::Pad", "Pad006")
pad7.Profile = sketch13
pad7.Length = 3

# Sketch on XY plane
sketch14 = body.newObject("Sketcher::SketchObject", "Sketch013")
sketch14.AttachmentSupport = (doc.getObject("XY_Plane"), [""])
sketch14.MapMode = "FlatFace"
sketch14.AttachmentOffset = App.Placement(V(0, 0, 1.867545), App.Rotation())
sketch14.addGeometry(Part.LineSegment(V(-9.32271, -22.215, 0), V(-9.32271, -24.206492, 0)), False)
sketch14.addGeometry(Part.LineSegment(V(-9.32271, -24.206492, 0), V(9.394491, -24.206492, 0)), False)
sketch14.addGeometry(Part.LineSegment(V(9.394491, -24.206492, 0), V(9.394491, -22.215, 0)), False)
sketch14.addGeometry(Part.LineSegment(V(9.394491, -22.215, 0), V(-9.32271, -22.215, 0)), False)
sketch14.addConstraint(Sketcher.Constraint("Coincident", 0, 2, 1, 1))
sketch14.addConstraint(Sketcher.Constraint("Coincident", 1, 2, 2, 1))
sketch14.addConstraint(Sketcher.Constraint("Coincident", 2, 2, 3, 1))
sketch14.addConstraint(Sketcher.Constraint("Coincident", 3, 2, 0, 1))
sketch14.addConstraint(Sketcher.Constraint("Vertical", 0))
sketch14.addConstraint(Sketcher.Constraint("Horizontal", 1))
sketch14.addConstraint(Sketcher.Constraint("Vertical", 2))
sketch14.addConstraint(Sketcher.Constraint("Horizontal", 3))
sketch14.addConstraint(Sketcher.Constraint("DistanceX", 1, 1, 1, 2, 18.717201))
sketch14.addConstraint(Sketcher.Constraint("DistanceY", 2, 2, -1, 1, 22.215))
sketch14.addConstraint(Sketcher.Constraint("DistanceY", 0, 2, 0, 1, 1.991492))
sketch14.addConstraint(Sketcher.Constraint("DistanceX", 0, 2, -1, 1, 9.32271))
pocket7 = body.newObject("PartDesign::Pocket", "Pocket006")
pocket7.Profile = sketch14
pocket7.Length = 3

# Sketch on XY plane
sketch15 = body.newObject("Sketcher::SketchObject", "Sketch014")
sketch15.AttachmentSupport = (doc.getObject("XY_Plane"), [""])
sketch15.MapMode = "FlatFace"
sketch15.addGeometry(Part.LineSegment(V(10.67, 25.215, 0), V(10.67, 22.215, 0)), False)
sketch15.addGeometry(Part.LineSegment(V(10.67, 22.215, 0), V(-10.711625, 22.215, 0)), False)
sketch15.addGeometry(Part.LineSegment(V(-10.711625, 22.215, 0), V(-10.711625, 25.215, 0)), False)
sketch15.addGeometry(Part.LineSegment(V(-10.711625, 25.215, 0), V(10.67, 25.215, 0)), False)
sketch15.addConstraint(Sketcher.Constraint("Coincident", 0, 2, 1, 1))
sketch15.addConstraint(Sketcher.Constraint("Coincident", 1, 2, 2, 1))
sketch15.addConstraint(Sketcher.Constraint("Coincident", 2, 2, 3, 1))
sketch15.addConstraint(Sketcher.Constraint("Coincident", 3, 2, 0, 1))
sketch15.addConstraint(Sketcher.Constraint("Vertical", 0))
sketch15.addConstraint(Sketcher.Constraint("Horizontal", 1))
sketch15.addConstraint(Sketcher.Constraint("Vertical", 2))
sketch15.addConstraint(Sketcher.Constraint("Horizontal", 3))
sketch15.addConstraint(Sketcher.Constraint("DistanceY", 0, 2, 0, 1, 3.0))
sketch15.addConstraint(Sketcher.Constraint("DistanceX", -1, 1, 0, 2, 10.67))
sketch15.addConstraint(Sketcher.Constraint("DistanceY", -1, 1, 0, 2, 22.215))
sketch15.addConstraint(Sketcher.Constraint("DistanceX", 1, 2, 1, 1, 21.381625))
pad8 = body.newObject("PartDesign::Pad", "Pad007")
pad8.Profile = sketch15
pad8.Length = 1.87

# Sketch on XY plane
sketch16 = body.newObject("Sketcher::SketchObject", "Sketch015")
sketch16.AttachmentSupport = (doc.getObject("XY_Plane"), [""])
sketch16.MapMode = "FlatFace"
sketch16.AttachmentOffset = App.Placement(V(0, 0, 1.87), App.Rotation())
sketch16.addGeometry(Part.LineSegment(V(-9.524193, 24.191854, 0), V(-9.524193, 22.215, 0)), False)
sketch16.addGeometry(Part.LineSegment(V(-9.524193, 22.215, 0), V(9.432245, 22.215, 0)), False)
sketch16.addGeometry(Part.LineSegment(V(9.432245, 22.215, 0), V(9.432245, 24.191854, 0)), False)
sketch16.addGeometry(Part.LineSegment(V(9.432245, 24.191854, 0), V(-9.524193, 24.191854, 0)), False)
sketch16.addConstraint(Sketcher.Constraint("Coincident", 0, 2, 1, 1))
sketch16.addConstraint(Sketcher.Constraint("Coincident", 1, 2, 2, 1))
sketch16.addConstraint(Sketcher.Constraint("Coincident", 2, 2, 3, 1))
sketch16.addConstraint(Sketcher.Constraint("Coincident", 3, 2, 0, 1))
sketch16.addConstraint(Sketcher.Constraint("Vertical", 0))
sketch16.addConstraint(Sketcher.Constraint("Horizontal", 1))
sketch16.addConstraint(Sketcher.Constraint("Vertical", 2))
sketch16.addConstraint(Sketcher.Constraint("Horizontal", 3))
sketch16.addConstraint(Sketcher.Constraint("DistanceY", -1, 1, 0, 2, 22.215))
sketch16.addConstraint(Sketcher.Constraint("DistanceX", 1, 1, 1, 2, 18.956438))
sketch16.addConstraint(Sketcher.Constraint("DistanceY", 0, 2, 0, 1, 1.976854))
sketch16.addConstraint(Sketcher.Constraint("DistanceX", 0, 2, -1, 1, 9.524193))
pocket8 = body.newObject("PartDesign::Pocket", "Pocket007")
pocket8.Profile = sketch16
pocket8.Length = 1.87

doc.recompute()
